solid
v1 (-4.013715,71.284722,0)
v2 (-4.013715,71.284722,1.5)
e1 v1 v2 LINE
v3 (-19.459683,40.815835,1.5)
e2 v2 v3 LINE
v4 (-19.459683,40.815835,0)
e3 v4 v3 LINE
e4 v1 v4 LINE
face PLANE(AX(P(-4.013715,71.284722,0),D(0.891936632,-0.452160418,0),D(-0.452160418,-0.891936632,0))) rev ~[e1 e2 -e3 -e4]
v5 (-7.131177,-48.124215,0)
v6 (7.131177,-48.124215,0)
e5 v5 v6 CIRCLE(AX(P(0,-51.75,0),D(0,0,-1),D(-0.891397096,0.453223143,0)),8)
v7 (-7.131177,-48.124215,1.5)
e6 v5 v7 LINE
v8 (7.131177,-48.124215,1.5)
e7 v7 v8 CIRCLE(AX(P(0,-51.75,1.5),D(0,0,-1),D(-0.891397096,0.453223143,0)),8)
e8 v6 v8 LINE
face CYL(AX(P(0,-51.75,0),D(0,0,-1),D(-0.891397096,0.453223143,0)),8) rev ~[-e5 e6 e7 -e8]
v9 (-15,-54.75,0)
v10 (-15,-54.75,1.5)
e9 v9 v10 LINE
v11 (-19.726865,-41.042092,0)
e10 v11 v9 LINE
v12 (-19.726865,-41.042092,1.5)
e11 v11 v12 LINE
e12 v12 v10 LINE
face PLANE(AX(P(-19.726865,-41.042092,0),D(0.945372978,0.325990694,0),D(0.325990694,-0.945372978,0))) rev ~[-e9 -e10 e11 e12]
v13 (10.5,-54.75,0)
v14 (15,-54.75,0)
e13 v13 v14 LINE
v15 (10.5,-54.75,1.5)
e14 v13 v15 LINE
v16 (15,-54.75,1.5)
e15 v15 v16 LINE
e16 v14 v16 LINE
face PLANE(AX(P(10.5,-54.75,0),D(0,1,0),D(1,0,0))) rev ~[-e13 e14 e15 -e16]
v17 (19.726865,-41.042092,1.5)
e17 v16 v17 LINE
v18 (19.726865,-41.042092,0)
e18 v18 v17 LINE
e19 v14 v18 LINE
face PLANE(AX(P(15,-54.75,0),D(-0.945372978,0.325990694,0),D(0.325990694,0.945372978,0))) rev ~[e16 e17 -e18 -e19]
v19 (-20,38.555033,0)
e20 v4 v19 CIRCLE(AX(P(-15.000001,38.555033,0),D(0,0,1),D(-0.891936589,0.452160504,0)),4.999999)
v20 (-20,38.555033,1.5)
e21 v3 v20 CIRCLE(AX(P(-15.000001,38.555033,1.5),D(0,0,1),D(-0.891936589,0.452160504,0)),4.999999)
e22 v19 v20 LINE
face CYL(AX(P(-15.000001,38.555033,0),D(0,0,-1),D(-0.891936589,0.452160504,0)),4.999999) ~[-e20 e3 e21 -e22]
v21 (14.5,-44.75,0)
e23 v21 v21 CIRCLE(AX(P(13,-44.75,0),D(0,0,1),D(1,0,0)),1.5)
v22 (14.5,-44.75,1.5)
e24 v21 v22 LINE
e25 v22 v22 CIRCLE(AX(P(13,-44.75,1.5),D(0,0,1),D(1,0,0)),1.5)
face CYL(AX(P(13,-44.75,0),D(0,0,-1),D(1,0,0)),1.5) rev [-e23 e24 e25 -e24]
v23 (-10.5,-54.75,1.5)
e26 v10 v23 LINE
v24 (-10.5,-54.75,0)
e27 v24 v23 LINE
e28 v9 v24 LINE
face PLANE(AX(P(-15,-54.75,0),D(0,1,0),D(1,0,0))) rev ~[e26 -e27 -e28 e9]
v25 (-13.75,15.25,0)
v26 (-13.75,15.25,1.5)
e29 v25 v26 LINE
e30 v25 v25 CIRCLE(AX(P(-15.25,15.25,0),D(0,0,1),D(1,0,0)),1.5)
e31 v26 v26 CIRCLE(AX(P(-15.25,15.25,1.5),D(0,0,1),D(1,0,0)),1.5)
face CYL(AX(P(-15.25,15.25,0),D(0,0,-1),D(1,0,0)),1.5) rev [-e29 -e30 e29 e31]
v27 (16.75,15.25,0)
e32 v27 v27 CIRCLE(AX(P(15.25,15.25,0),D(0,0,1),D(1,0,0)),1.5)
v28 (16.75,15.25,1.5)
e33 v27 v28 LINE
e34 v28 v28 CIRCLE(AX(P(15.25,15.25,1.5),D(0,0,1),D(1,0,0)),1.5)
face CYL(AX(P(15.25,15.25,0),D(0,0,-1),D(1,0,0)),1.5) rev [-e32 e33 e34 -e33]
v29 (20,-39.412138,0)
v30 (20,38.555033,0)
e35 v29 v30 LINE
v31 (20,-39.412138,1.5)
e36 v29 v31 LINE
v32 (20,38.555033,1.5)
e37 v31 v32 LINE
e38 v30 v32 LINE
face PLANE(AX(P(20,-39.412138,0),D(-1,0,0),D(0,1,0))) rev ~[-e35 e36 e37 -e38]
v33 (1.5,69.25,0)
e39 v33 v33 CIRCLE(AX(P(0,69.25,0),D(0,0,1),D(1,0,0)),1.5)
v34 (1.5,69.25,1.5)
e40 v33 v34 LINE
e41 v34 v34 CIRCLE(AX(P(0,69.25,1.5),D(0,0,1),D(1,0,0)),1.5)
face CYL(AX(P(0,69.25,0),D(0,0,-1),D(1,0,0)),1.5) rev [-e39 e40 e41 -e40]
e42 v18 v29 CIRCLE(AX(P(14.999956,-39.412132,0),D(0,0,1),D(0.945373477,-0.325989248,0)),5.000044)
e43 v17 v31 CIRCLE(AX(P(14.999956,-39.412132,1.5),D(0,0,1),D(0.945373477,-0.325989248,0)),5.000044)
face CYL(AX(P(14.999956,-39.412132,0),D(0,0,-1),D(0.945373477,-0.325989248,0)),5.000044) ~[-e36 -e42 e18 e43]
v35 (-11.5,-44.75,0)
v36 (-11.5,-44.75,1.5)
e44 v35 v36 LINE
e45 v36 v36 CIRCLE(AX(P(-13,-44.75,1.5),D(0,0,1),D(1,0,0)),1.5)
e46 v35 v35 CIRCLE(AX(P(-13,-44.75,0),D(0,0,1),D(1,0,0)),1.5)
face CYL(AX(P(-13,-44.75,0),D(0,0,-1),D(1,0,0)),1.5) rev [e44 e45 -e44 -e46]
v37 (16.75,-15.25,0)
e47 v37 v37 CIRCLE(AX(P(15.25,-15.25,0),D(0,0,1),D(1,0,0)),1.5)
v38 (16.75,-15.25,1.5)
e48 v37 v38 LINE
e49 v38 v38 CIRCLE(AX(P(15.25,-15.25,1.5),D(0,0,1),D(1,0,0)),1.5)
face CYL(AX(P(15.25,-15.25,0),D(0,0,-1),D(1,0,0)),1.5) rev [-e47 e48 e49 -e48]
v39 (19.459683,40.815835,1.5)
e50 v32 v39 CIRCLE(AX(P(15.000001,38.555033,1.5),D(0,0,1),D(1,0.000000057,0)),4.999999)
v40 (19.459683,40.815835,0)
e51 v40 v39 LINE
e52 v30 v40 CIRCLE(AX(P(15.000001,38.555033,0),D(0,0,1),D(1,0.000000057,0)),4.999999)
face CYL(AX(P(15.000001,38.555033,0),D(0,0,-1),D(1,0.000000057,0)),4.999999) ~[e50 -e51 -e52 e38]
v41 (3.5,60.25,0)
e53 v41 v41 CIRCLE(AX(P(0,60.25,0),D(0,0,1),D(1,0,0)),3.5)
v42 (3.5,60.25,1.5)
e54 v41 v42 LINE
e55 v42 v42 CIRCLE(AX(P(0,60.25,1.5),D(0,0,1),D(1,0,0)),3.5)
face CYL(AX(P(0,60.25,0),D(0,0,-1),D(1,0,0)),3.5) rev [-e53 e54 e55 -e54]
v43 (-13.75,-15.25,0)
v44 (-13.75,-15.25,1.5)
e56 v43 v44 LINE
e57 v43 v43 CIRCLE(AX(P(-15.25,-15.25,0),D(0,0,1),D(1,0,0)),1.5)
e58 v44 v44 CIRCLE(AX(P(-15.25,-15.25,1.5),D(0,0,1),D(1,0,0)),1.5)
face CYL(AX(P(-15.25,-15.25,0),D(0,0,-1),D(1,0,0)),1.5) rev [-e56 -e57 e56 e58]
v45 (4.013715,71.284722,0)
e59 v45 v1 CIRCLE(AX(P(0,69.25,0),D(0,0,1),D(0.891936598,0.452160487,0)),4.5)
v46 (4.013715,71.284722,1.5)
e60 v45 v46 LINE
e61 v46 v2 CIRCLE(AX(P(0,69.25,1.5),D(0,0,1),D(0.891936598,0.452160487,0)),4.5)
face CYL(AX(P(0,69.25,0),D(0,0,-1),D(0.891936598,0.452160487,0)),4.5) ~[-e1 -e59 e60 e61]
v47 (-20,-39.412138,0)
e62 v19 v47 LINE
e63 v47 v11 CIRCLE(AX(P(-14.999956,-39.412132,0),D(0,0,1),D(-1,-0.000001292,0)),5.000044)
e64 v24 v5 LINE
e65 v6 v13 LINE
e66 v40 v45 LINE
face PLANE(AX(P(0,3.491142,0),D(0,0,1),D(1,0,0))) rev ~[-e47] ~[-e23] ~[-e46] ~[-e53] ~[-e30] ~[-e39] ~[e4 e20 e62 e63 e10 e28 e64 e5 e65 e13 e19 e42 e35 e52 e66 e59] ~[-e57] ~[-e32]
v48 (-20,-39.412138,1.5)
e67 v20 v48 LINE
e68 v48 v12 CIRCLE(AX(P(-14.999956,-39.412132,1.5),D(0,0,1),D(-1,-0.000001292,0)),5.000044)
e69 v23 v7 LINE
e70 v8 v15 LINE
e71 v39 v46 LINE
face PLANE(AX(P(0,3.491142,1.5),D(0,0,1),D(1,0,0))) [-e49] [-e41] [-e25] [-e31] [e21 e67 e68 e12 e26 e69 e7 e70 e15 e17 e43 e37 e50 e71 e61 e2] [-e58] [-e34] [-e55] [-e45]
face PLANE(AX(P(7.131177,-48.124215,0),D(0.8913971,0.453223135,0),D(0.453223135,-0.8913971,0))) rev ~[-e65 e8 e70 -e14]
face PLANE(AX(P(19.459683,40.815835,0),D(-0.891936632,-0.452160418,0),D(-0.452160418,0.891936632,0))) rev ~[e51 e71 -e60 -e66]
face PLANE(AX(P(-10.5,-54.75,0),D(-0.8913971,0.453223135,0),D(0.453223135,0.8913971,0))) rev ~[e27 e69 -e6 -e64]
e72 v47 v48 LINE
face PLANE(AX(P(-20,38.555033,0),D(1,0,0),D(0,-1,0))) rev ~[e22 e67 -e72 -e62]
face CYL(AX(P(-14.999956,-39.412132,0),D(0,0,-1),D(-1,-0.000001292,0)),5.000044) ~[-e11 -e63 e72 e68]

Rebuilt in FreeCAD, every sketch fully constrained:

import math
import FreeCAD as App
import Part
import Sketcher
Q = App.Units.Quantity

doc = App.newDocument("Part")
body = doc.addObject("PartDesign::Body", "Body")

sketch1 = body.newObject("Sketcher::SketchObject", "Sketch")
sketch1.AttachmentSupport = (doc.getObject("XY_Plane"), [""])
sketch1.MapMode = "FlatFace"
sketch1.addGeometry(Part.LineSegment(App.Vector(19.5, 40.8, 0), App.Vector(4, 71.3, 0)), False)
sketch1.addGeometry(Part.ArcOfCircle(Part.Circle(App.Vector(0, 69.2, 0), App.Vector(0, 0, 1), 4.5), math.radians(27), math.radians(153)), False)
sketch1.addGeometry(Part.LineSegment(App.Vector(-4, 71.3, 0), App.Vector(-19.5, 40.8, 0)), False)
sketch1.addGeometry(Part.ArcOfCircle(Part.Circle(App.Vector(-15, 38.6, 0), App.Vector(0, 0, 1), 5), math.radians(153), math.radians(180)), False)
sketch1.addGeometry(Part.LineSegment(App.Vector(-20, 38.6, 0), App.Vector(-20, -39.4, 0)), False)
sketch1.addGeometry(Part.ArcOfCircle(Part.Circle(App.Vector(-15, -39.4, 0), App.Vector(0, 0, 1), 5), math.radians(-180), math.radians(-160.97)), False)
sketch1.addGeometry(Part.LineSegment(App.Vector(-19.7, -41, 0), App.Vector(-15, -54.8, 0)), False)
sketch1.addGeometry(Part.LineSegment(App.Vector(-15, -54.8, 0), App.Vector(-10.5, -54.8, 0)), False)
sketch1.addGeometry(Part.LineSegment(App.Vector(-10.5, -54.8, 0), App.Vector(-7.1, -48.1, 0)), False)
sketch1.addGeometry(Part.ArcOfCircle(Part.Circle(App.Vector(0, -51.8, 0), App.Vector(0, 0, 1), 8), math.radians(27), math.radians(153)), False)
sketch1.addGeometry(Part.LineSegment(App.Vector(7.1, -48.1, 0), App.Vector(10.5, -54.8, 0)), False)
sketch1.addGeometry(Part.LineSegment(App.Vector(10.5, -54.8, 0), App.Vector(15, -54.8, 0)), False)
sketch1.addGeometry(Part.LineSegment(App.Vector(15, -54.8, 0), App.Vector(19.7, -41, 0)), False)
sketch1.addGeometry(Part.ArcOfCircle(Part.Circle(App.Vector(15, -39.4, 0), App.Vector(0, 0, 1), 5), math.radians(-19.03), math.radians(0)), False)
sketch1.addGeometry(Part.LineSegment(App.Vector(20, -39.4, 0), App.Vector(20, 38.6, 0)), False)
sketch1.addGeometry(Part.ArcOfCircle(Part.Circle(App.Vector(15, 38.6, 0), App.Vector(0, 0, 1), 5), math.radians(0), math.radians(27)), False)
sketch1.addGeometry(Part.Circle(App.Vector(-13, -44.8, 0), App.Vector(0, 0, 1), 1.5), False)
sketch1.addGeometry(Part.Circle(App.Vector(-15.2, -15.2, 0), App.Vector(0, 0, 1), 1.5), False)
sketch1.addGeometry(Part.Circle(App.Vector(13, -44.8, 0), App.Vector(0, 0, 1), 1.5), False)
sketch1.addGeometry(Part.Circle(App.Vector(15.2, -15.2, 0), App.Vector(0, 0, 1), 1.5), False)
sketch1.addGeometry(Part.Circle(App.Vector(-15.2, 15.2, 0), App.Vector(0, 0, 1), 1.5), False)
sketch1.addGeometry(Part.Circle(App.Vector(15.2, 15.2, 0), App.Vector(0, 0, 1), 1.5), False)
sketch1.addGeometry(Part.Circle(App.Vector(0, 60.2, 0), App.Vector(0, 0, 1), 3.5), False)
sketch1.addGeometry(Part.Circle(App.Vector(0, 69.2, 0), App.Vector(0, 0, 1), 1.5), False)
sketch1.addConstraint(Sketcher.Constraint("Tangent", 0, 2, 1, 1))
sketch1.addConstraint(Sketcher.Constraint("Tangent", 1, 2, 2, 1))
sketch1.addConstraint(Sketcher.Constraint("Tangent", 2, 2, 3, 1))
sketch1.addConstraint(Sketcher.Constraint("Tangent", 3, 2, 4, 1))
sketch1.addConstraint(Sketcher.Constraint("Tangent", 4, 2, 5, 1))
sketch1.addConstraint(Sketcher.Constraint("Tangent", 5, 2, 6, 1))
sketch1.addConstraint(Sketcher.Constraint("Coincident", 6, 2, 7, 1))
sketch1.addConstraint(Sketcher.Constraint("Coincident", 7, 2, 8, 1))
sketch1.addConstraint(Sketcher.Constraint("Tangent", 8, 2, 9, 2))
sketch1.addConstraint(Sketcher.Constraint("Tangent", 9, 1, 10, 1))
sketch1.addConstraint(Sketcher.Constraint("Coincident", 10, 2, 11, 1))
sketch1.addConstraint(Sketcher.Constraint("Coincident", 11, 2, 12, 1))
sketch1.addConstraint(Sketcher.Constraint("Tangent", 12, 2, 13, 1))
sketch1.addConstraint(Sketcher.Constraint("Tangent", 13, 2, 14, 1))
sketch1.addConstraint(Sketcher.Constraint("Tangent", 14, 2, 15, 1))
sketch1.addConstraint(Sketcher.Constraint("Tangent", 15, 2, 0, 1))
sketch1.addConstraint(Sketcher.Constraint("Vertical", 4))
sketch1.addConstraint(Sketcher.Constraint("Horizontal", 7))
sketch1.addConstraint(Sketcher.Constraint("Horizontal", 11))
sketch1.addConstraint(Sketcher.Constraint("Vertical", 14))
sketch1.addConstraint(Sketcher.Constraint("Coincident", 23, 3, 1, 3))
sketch1.addConstraint(Sketcher.Constraint("Equal", 5, 13))
sketch1.addConstraint(Sketcher.Constraint("Equal", 3, 15))
sketch1.addConstraint(Sketcher.Constraint("Equal", 16, 17))
sketch1.addConstraint(Sketcher.Constraint("Equal", 17, 18))
sketch1.addConstraint(Sketcher.Constraint("Equal", 18, 19))
sketch1.addConstraint(Sketcher.Constraint("Equal", 19, 20))
sketch1.addConstraint(Sketcher.Constraint("Equal", 20, 21))
sketch1.addConstraint(Sketcher.Constraint("Equal", 21, 23))
sketch1.addConstraint(Sketcher.Constraint("Symmetric", 19, 3, 20, 3, -1, 1))
sketch1.addConstraint(Sketcher.Constraint("Symmetric", 17, 3, 21, 3, -1, 1))
sketch1.addConstraint(Sketcher.Constraint("Symmetric", 5, 3, 13, 3, -2))
sketch1.addConstraint(Sketcher.Constraint("Symmetric", 16, 3, 18, 3, -2))
sketch1.addConstraint(Sketcher.Constraint("Symmetric", 17, 3, 19, 3, -2))
sketch1.addConstraint(Sketcher.Constraint("Symmetric", 0, 2, 1, 2, -2))
sketch1.addConstraint(Sketcher.Constraint("Symmetric", 8, 2, 9, 1, -2))
sketch1.addConstraint(Sketcher.Constraint("Symmetric", 6, 2, 11, 2, -2))
sketch1.addConstraint(Sketcher.Constraint("PointOnObject", 22, 3, -2))
sketch1.addConstraint(Sketcher.Constraint("Vertical", 3, 3, 6, 2))
sketch1.addConstraint(Sketcher.Constraint("Diameter", 16, Q("3 mm")))
sketch1.addConstraint(Sketcher.Constraint("Diameter", 22, Q("7 mm")))
sketch1.addConstraint(Sketcher.Constraint("Radius", 3, Q("4.999999 mm")))
sketch1.addConstraint(Sketcher.Constraint("Radius", 9, Q("8 mm")))
sketch1.addConstraint(Sketcher.Constraint("Radius", 1, Q("4.5 mm")))
sketch1.addConstraint(Sketcher.Constraint("DistanceX", 7, 1, 7, 2, Q("4.5 mm")))
sketch1.addConstraint(Sketcher.Constraint("DistanceX", 3, 3, -1, 1, Q("15.000001 mm")))
sketch1.addConstraint(Sketcher.Constraint("DistanceX", 16, 3, -1, 1, Q("13 mm")))
sketch1.addConstraint(Sketcher.Constraint("DistanceY", 9, 3, 1, 3, Q("121 mm")))
sketch1.addConstraint(Sketcher.Constraint("DistanceY", 9, 3, 16, 3, Q("7 mm")))
sketch1.addConstraint(Sketcher.Constraint("DistanceY", 22, 3, 1, 3, Q("9 mm")))
sketch1.addConstraint(Sketcher.Constraint("DistanceY", 20, 3, 22, 3, Q("45 mm")))
sketch1.addConstraint(Sketcher.Constraint("DistanceY", 6, 2, 16, 3, Q("10 mm")))
sketch1.addConstraint(Sketcher.Constraint("Distance", 6, Q("14.5 mm")))
sketch1.addConstraint(Sketcher.Constraint("DistanceY", 16, 3, 17, 3, Q("29.5 mm")))
sketch1.addConstraint(Sketcher.Constraint("DistanceX", 17, 3, 19, 3, Q("30.5 mm")))
sketch1.addConstraint(Sketcher.Constraint("Radius", 5, Q("5.000044 mm")))
sketch1.addConstraint(Sketcher.Constraint("DistanceY", 4, 2, 4, 1, Q("77.967171 mm")))
pad1 = body.newObject("PartDesign::Pad", "Pad")
pad1.Profile = sketch1
pad1.Length = 1.5

doc.recompute()
